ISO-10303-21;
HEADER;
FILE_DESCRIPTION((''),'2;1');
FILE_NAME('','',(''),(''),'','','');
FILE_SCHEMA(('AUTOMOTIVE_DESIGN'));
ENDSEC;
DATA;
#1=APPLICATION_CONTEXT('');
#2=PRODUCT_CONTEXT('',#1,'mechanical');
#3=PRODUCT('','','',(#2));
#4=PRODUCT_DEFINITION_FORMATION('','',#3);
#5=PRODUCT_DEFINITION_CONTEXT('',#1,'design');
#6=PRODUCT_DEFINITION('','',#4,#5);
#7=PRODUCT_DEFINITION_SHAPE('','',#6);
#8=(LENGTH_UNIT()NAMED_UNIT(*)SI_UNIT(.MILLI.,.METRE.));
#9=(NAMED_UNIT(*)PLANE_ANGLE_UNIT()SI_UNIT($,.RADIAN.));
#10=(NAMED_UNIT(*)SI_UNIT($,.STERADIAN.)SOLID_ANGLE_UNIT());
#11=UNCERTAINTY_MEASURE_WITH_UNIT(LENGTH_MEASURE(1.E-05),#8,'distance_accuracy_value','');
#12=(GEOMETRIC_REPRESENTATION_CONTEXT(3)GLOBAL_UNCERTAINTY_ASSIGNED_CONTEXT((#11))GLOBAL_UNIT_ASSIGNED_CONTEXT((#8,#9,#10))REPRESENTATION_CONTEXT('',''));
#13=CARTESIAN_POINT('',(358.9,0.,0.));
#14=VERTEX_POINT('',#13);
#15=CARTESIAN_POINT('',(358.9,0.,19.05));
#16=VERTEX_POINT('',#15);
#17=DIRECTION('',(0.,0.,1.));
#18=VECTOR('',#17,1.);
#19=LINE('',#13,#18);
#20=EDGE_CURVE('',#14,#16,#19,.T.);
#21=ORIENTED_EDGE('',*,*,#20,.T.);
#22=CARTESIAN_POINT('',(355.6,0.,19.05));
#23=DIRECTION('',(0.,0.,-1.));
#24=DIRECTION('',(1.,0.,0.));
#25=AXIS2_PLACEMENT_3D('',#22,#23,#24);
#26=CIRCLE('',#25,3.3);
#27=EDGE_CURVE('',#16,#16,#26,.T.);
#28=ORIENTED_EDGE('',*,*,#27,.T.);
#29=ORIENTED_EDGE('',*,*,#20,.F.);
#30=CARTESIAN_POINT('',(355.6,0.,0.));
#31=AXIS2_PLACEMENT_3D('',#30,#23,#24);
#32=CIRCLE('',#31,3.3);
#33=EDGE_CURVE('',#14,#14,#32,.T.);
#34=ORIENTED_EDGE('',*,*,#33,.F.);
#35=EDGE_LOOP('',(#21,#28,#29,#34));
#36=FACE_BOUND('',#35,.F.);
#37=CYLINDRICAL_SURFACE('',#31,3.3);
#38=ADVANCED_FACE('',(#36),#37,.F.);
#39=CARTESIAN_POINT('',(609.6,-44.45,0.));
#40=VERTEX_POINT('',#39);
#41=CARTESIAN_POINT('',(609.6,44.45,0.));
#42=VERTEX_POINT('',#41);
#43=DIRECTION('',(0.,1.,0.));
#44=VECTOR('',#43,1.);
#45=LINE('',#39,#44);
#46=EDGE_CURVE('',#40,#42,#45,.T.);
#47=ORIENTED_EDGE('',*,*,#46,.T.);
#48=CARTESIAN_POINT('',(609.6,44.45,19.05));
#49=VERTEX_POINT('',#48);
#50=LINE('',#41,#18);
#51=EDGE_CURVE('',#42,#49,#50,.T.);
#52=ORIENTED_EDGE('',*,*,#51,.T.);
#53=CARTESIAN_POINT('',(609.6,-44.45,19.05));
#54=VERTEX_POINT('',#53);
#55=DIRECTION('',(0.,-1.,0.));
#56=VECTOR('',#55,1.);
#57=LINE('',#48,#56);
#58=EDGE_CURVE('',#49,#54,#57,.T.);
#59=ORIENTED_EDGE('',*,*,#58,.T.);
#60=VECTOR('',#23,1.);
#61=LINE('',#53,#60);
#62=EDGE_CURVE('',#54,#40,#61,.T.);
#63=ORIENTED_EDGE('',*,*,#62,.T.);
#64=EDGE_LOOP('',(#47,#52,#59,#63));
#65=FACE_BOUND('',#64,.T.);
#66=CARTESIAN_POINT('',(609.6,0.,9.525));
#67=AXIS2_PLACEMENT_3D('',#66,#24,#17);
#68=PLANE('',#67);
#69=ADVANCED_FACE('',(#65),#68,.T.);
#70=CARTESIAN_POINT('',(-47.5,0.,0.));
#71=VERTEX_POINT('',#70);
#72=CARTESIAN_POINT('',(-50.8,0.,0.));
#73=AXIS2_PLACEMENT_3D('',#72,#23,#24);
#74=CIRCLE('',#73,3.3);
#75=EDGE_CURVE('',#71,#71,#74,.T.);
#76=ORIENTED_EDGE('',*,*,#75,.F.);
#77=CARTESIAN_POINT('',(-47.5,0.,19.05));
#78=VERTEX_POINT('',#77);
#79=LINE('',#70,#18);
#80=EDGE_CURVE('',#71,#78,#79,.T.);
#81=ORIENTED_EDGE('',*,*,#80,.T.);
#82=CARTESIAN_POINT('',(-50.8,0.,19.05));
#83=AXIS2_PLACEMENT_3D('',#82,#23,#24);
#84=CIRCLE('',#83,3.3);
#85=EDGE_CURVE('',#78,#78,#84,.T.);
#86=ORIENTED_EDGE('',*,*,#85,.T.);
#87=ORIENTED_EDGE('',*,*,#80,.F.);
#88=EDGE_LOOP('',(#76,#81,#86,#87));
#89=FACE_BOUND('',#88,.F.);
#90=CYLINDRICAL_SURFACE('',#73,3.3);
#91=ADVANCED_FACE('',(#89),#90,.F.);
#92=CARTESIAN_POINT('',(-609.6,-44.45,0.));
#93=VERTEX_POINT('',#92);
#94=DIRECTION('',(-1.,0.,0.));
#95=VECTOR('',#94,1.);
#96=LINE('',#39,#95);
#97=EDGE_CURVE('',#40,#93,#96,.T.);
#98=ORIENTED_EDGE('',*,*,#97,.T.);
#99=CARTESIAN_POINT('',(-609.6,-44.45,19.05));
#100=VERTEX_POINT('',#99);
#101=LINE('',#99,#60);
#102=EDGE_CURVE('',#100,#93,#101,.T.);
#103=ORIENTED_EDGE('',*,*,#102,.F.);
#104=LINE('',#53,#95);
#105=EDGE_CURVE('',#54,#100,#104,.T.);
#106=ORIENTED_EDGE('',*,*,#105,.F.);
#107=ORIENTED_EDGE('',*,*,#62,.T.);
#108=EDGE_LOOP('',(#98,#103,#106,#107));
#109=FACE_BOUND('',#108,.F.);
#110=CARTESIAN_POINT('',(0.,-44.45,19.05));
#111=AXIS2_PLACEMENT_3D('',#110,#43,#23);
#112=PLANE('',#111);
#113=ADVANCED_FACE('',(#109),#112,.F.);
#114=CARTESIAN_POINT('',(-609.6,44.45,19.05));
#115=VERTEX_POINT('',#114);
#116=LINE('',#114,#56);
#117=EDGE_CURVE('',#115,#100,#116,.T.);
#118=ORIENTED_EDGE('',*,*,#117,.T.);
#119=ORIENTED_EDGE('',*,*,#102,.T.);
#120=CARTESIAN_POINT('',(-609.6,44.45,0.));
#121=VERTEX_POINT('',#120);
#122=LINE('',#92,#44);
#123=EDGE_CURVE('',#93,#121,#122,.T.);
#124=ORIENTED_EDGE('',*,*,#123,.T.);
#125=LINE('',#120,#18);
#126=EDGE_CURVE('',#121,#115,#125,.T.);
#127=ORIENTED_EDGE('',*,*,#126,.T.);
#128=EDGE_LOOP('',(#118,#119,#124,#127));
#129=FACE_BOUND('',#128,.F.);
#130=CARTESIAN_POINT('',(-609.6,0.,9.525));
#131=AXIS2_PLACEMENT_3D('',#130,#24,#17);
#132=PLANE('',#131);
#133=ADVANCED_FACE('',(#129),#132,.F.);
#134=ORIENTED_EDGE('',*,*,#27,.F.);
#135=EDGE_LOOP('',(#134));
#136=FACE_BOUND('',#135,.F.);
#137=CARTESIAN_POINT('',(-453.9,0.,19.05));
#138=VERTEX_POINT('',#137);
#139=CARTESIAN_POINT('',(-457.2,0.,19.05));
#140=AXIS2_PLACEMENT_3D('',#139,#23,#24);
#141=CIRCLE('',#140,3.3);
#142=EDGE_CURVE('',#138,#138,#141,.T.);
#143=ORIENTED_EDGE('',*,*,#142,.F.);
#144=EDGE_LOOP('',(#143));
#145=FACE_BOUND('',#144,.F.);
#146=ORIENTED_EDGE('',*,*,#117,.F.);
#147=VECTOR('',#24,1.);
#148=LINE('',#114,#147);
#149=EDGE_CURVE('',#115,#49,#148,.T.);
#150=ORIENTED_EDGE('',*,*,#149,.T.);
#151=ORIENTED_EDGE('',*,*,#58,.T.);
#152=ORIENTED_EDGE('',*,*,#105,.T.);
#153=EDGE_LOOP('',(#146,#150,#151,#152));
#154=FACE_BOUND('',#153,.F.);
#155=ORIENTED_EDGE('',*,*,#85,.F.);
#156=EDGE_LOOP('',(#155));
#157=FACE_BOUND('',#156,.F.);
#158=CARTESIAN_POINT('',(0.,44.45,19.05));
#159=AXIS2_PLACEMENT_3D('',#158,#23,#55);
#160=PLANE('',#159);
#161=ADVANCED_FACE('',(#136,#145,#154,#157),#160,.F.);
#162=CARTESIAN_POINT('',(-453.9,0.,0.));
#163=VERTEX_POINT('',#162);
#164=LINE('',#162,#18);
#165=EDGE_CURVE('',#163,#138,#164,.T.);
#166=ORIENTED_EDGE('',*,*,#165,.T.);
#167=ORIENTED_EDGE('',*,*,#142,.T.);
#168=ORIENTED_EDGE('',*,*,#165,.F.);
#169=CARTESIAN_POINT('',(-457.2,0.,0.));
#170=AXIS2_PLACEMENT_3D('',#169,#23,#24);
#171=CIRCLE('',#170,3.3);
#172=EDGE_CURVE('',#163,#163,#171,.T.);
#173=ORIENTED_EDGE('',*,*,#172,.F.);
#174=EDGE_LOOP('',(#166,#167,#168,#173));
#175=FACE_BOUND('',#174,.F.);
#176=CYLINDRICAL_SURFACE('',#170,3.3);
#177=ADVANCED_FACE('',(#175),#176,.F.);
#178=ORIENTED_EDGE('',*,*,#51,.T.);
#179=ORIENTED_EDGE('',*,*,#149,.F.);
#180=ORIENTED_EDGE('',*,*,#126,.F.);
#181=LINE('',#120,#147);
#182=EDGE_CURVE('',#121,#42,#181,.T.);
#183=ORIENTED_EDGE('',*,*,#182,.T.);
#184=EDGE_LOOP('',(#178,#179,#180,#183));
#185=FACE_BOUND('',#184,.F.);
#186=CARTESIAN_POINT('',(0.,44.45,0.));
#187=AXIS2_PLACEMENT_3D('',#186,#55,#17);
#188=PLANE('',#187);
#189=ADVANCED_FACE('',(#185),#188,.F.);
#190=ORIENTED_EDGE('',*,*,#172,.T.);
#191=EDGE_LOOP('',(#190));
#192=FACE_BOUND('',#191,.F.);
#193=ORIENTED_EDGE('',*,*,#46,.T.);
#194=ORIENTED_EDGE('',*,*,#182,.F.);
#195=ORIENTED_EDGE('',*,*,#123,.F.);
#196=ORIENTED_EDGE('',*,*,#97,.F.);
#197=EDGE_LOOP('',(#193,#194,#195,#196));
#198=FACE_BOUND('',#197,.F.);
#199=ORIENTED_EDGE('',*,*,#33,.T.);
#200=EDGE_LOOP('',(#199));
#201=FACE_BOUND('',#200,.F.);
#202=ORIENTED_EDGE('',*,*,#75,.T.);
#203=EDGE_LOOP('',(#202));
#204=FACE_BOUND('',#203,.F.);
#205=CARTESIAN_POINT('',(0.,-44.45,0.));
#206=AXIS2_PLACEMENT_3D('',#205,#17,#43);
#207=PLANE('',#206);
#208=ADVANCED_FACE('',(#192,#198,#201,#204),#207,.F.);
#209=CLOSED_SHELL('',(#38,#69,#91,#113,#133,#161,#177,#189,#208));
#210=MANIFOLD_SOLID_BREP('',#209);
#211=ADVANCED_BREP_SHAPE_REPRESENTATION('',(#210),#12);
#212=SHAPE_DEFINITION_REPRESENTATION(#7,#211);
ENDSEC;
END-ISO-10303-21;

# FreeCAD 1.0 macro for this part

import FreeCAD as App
import Part
import Sketcher
from FreeCAD import Vector
Q = App.Units.Quantity


def add_polygon(sketch, points):
    """Adds a closed chain of lines whose ends are joined by coincident constraints."""
    first, n = sketch.GeometryCount, len(points)
    for a, b in zip(points, points[1:] + points[:1]):
        sketch.addGeometry(Part.LineSegment(App.Vector(*a, 0), App.Vector(*b, 0)), False)
    for i in range(n):
        sketch.addConstraint(Sketcher.Constraint("Coincident", first + i, 2, first + (i + 1) % n, 1))

doc = App.newDocument("Part")
params = doc.addObject("Spreadsheet::Sheet", "Params")
for row, (alias, value) in enumerate([
    ("sketch1_width", "3.5 in"),
    ("sketch1_height", "0.75 in"),
    ("pad1_length", "48 in"),
    ("linearpattern_pitch", "16 in"),
], start=1):
    params.set(f"A{row}", alias)
    params.set(f"B{row}", "=" + value)
    params.setAlias(f"B{row}", alias)

body = doc.addObject("PartDesign::Body", "Body")

# Sketch on YZ plane
sketch1 = doc.addObject("Sketcher::SketchObject", "Sketch")
body.addObject(sketch1)
sketch1.AttachmentSupport = (doc.YZ_Plane, [""])
sketch1.MapMode = "FlatFace"
add_polygon(sketch1, [(-44.45, 19.05), (-44.45, 0), (44.45, 0), (44.45, 19.05)])  # lines 0-3
sketch1.addConstraint(Sketcher.Constraint("Vertical", 0))
sketch1.addConstraint(Sketcher.Constraint("Horizontal", 1))
sketch1.addConstraint(Sketcher.Constraint("Vertical", 2))
sketch1.addConstraint(Sketcher.Constraint("Horizontal", 3))
sketch1.addConstraint(Sketcher.Constraint("Symmetric", 0, 2, 1, 2, -1, 1))
sketch1.addConstraint(Sketcher.Constraint("DistanceX", 1, 1, 1, 2, Q("3.5 in")))
sketch1.addConstraint(Sketcher.Constraint("DistanceY", 0, 2, 0, 1, Q("0.75 in")))
sketch1.setExpression("Constraints[9]", "Params.sketch1_width")
sketch1.setExpression("Constraints[10]", "Params.sketch1_height")
pad1 = doc.addObject("PartDesign::Pad", "Pad")
body.addObject(pad1)
pad1.Profile = sketch1
pad1.setExpression("Length", "Params.pad1_length")
pad1.Midplane = True

# Sketch on XY plane
sketch2 = doc.addObject("Sketcher::SketchObject", "Sketch001")
body.addObject(sketch2)
sketch2.AttachmentSupport = (doc.XY_Plane, [""])
sketch2.MapMode = "FlatFace"
sketch2.addGeometry(Part.Circle(Vector(-457.2, 0, 0), Vector(0, 0, 1), 3.3), False)
sketch2.addConstraint(Sketcher.Constraint("PointOnObject", 0, 3, -1))
sketch2.addConstraint(Sketcher.Constraint("DistanceX", 0, 3, -1, 1, Q("18 in")))
sketch2.addConstraint(Sketcher.Constraint("Diameter", 0, Q("6.6 mm")))
pocket1 = doc.addObject("PartDesign::Pocket", "Pocket")
body.addObject(pocket1)
pocket1.Profile = sketch2
pocket1.Type = "ThroughAll"
pocket1.Reversed = True
doc.recompute()

linearpattern = doc.addObject("PartDesign::LinearPattern", "LinearPattern")
body.addObject(linearpattern)
linearpattern.Originals = [pocket1]
linearpattern.Direction = (doc.X_Axis, [""])
linearpattern.Mode = "offset"
linearpattern.setExpression("Offset", "Params.linearpattern_pitch")
linearpattern.Occurrences = 3
body.Tip = linearpattern

doc.recompute()
